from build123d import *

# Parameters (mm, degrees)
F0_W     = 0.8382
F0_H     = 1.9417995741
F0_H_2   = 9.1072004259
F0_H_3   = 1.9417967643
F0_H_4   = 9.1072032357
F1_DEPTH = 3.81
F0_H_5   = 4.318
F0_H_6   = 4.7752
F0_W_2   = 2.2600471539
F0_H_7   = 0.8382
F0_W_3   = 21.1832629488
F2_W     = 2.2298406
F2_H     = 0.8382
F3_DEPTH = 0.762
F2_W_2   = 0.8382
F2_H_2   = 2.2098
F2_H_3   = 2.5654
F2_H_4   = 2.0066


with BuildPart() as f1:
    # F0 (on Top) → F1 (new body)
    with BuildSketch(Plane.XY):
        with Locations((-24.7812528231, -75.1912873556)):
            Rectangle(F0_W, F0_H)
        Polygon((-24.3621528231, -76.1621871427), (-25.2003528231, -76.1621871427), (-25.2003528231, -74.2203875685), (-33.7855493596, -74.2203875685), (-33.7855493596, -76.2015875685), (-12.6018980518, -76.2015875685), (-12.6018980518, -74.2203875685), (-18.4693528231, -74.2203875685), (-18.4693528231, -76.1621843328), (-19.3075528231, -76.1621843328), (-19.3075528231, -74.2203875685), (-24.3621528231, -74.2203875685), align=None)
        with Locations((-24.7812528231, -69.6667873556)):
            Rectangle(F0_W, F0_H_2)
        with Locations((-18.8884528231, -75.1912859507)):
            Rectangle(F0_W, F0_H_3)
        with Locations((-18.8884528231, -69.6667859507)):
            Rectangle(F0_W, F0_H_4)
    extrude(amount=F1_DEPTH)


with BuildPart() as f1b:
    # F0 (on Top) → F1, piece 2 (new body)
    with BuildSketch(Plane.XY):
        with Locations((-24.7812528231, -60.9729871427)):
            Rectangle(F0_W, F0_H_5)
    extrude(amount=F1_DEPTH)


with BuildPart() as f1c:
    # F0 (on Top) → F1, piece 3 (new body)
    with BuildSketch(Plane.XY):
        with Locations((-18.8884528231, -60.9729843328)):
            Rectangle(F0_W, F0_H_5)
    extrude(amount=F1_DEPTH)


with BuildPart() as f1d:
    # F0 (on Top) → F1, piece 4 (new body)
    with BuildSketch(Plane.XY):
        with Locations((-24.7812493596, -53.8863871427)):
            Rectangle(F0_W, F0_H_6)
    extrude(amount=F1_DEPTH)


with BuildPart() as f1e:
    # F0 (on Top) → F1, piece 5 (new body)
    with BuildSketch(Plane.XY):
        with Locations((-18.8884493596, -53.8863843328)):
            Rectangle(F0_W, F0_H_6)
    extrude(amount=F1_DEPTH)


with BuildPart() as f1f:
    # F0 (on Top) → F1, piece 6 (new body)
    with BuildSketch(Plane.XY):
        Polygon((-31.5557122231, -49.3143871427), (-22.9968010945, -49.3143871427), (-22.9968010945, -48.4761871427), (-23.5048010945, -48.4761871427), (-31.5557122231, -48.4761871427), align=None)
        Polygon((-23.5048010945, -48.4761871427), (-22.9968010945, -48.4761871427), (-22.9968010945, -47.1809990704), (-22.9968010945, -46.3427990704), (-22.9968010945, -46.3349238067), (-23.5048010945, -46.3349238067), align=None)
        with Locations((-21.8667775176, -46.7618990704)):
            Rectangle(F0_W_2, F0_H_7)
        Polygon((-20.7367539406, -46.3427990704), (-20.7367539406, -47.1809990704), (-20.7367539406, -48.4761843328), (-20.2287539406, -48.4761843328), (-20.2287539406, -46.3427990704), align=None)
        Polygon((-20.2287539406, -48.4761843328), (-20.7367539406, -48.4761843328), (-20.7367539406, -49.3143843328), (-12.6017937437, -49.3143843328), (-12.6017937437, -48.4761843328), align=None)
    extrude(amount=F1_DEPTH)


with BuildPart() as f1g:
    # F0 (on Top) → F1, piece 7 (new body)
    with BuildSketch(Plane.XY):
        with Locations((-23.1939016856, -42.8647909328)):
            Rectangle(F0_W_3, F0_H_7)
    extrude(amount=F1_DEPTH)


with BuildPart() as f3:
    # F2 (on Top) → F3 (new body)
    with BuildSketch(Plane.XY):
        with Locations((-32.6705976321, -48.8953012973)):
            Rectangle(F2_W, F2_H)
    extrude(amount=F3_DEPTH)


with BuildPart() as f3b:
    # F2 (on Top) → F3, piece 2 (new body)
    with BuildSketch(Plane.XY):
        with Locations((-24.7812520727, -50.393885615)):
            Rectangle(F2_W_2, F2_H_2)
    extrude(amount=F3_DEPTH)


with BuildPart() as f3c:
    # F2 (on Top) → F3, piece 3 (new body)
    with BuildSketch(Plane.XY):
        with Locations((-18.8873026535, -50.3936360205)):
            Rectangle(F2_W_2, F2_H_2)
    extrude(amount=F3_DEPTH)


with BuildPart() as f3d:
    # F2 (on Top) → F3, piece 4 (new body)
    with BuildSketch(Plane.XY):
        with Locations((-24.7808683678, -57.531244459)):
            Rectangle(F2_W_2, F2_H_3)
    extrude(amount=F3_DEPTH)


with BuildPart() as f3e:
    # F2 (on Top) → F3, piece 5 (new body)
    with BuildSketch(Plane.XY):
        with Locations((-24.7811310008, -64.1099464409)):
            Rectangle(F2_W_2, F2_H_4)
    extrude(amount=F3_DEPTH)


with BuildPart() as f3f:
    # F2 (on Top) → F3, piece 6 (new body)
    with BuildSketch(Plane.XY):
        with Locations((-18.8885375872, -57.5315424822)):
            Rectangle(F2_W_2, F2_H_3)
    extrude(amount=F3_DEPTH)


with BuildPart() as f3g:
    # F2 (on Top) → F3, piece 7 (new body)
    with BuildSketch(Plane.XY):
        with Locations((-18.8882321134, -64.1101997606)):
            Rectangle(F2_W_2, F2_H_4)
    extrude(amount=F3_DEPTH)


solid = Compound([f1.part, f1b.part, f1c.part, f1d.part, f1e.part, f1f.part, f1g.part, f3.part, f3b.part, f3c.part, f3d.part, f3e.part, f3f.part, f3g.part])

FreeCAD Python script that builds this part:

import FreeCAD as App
import Part
import Sketcher

V = App.Vector
Q = App.Units.Quantity

doc = App.newDocument("Part")
params = doc.addObject("Spreadsheet::Sheet", "Params")
for row, (alias, value) in enumerate([
    ("sketch1_width", "0.3379999 in"),
    ("sketch1_width2", "0.033 in"),
    ("sketch1_width3", "0.199 in"),
    ("sketch1_height", "0.078 in"),
    ("pad1_length", "0.15 in"),
    ("sketch2_height", "0.17 in"),
    ("sketch2_width", "0.033 in"),
    ("pad2_length", "0.15 in"),
    ("sketch3_height", "0.17 in"),
    ("sketch3_width", "0.033 in"),
    ("pad3_length", "0.15 in"),
    ("sketch4_width", "0.033 in"),
    ("sketch4_height", "0.188 in"),
    ("pad4_length", "0.15 in"),
    ("sketch5_width", "0.033 in"),
    ("sketch5_height", "0.188 in"),
    ("pad5_length", "0.15 in"),
    ("sketch6_width", "0.02 in"),
    ("sketch6_height", "0.033 in"),
    ("pad6_length", "0.15 in"),
    ("sketch7_height", "0.033 in"),
    ("pad7_length", "0.15 in"),
    ("sketch8_height", "0.033 in"),
    ("pad8_length", "0.03 in"),
    ("sketch9_width", "0.033 in"),
    ("sketch9_height", "0.087 in"),
    ("pad9_length", "0.03 in"),
    ("sketch10_width", "0.033 in"),
    ("sketch10_height", "0.087 in"),
    ("pad10_length", "0.03 in"),
    ("sketch11_width", "0.033 in"),
    ("sketch11_height", "0.101 in"),
    ("pad11_length", "0.03 in"),
    ("sketch12_width", "0.033 in"),
    ("sketch12_height", "0.079 in"),
    ("pad12_length", "0.03 in"),
    ("sketch13_width", "0.033 in"),
    ("sketch13_height", "0.101 in"),
    ("pad13_length", "0.03 in"),
    ("sketch14_width", "0.033 in"),
    ("sketch14_height", "0.079 in"),
    ("pad14_length", "0.03 in"),
], start=1):
    params.set(f"A{row}", alias)
    params.set(f"B{row}", "=" + value)
    params.setAlias(f"B{row}", alias)

body = doc.addObject("PartDesign::Body", "Body")

# Sketch on XY plane
sketch1 = doc.addObject("Sketcher::SketchObject", "Sketch")
body.addObject(sketch1)
sketch1.AttachmentSupport = (doc.XY_Plane, [""])
sketch1.MapMode = "FlatFace"
sketch1.addGeometry([
    Part.LineSegment(V(-25.2, -74.2, 0), V(-33.8, -74.2, 0)),  # 0
    Part.LineSegment(V(-33.8, -74.2, 0), V(-33.8, -76.2, 0)),  # 1
    Part.LineSegment(V(-33.8, -76.2, 0), V(-12.6, -76.2, 0)),  # 2
    Part.LineSegment(V(-12.6, -76.2, 0), V(-12.6, -74.2, 0)),  # 3
    Part.LineSegment(V(-12.6, -74.2, 0), V(-18.5, -74.2, 0)),  # 4
    Part.LineSegment(V(-18.5, -74.2, 0), V(-18.5, -65.1, 0)),  # 5
    Part.LineSegment(V(-18.5, -65.1, 0), V(-19.3, -65.1, 0)),  # 6
    Part.LineSegment(V(-19.3, -65.1, 0), V(-19.3, -74.2, 0)),  # 7
    Part.LineSegment(V(-19.3, -74.2, 0), V(-24.4, -74.2, 0)),  # 8
    Part.LineSegment(V(-24.4, -74.2, 0), V(-24.4, -65.1, 0)),  # 9
    Part.LineSegment(V(-24.4, -65.1, 0), V(-25.2, -65.1, 0)),  # 10
    Part.LineSegment(V(-25.2, -65.1, 0), V(-25.2, -74.2, 0)),  # 11
], False)
sketch1.addConstraint([
    Sketcher.Constraint("Coincident", 0, 2, 1, 1),
    Sketcher.Constraint("Coincident", 1, 2, 2, 1),
    Sketcher.Constraint("Coincident", 2, 2, 3, 1),
    Sketcher.Constraint("Coincident", 3, 2, 4, 1),
    Sketcher.Constraint("Coincident", 4, 2, 5, 1),
    Sketcher.Constraint("Coincident", 5, 2, 6, 1),
    Sketcher.Constraint("Coincident", 6, 2, 7, 1),
    Sketcher.Constraint("Coincident", 7, 2, 8, 1),
    Sketcher.Constraint("Coincident", 8, 2, 9, 1),
    Sketcher.Constraint("Coincident", 9, 2, 10, 1),
    Sketcher.Constraint("Coincident", 10, 2, 11, 1),
    Sketcher.Constraint("Coincident", 11, 2, 0, 1),
    Sketcher.Constraint("Horizontal", 0),
    Sketcher.Constraint("Vertical", 1),
    Sketcher.Constraint("Horizontal", 2),
    Sketcher.Constraint("Vertical", 3),
    Sketcher.Constraint("Horizontal", 4),
    Sketcher.Constraint("Vertical", 5),
    Sketcher.Constraint("Horizontal", 6),
    Sketcher.Constraint("Vertical", 7),
    Sketcher.Constraint("Horizontal", 8),
    Sketcher.Constraint("Vertical", 9),
    Sketcher.Constraint("Horizontal", 10),
    Sketcher.Constraint("Vertical", 11),
    Sketcher.Constraint("Horizontal", 0, 2, 3, 2),
    Sketcher.Constraint("Horizontal", 4, 2, 7, 2),
    Sketcher.Constraint("Equal", 6, 10),
    Sketcher.Constraint("DistanceX", 0, 2, 0, 1, Q("0.3379999 in")),
    Sketcher.Constraint("DistanceX", 6, 2, 6, 1, Q("0.033 in")),
    Sketcher.Constraint("DistanceX", 8, 2, 8, 1, Q("0.199 in")),
    Sketcher.Constraint("DistanceY", 1, 2, 1, 1, Q("0.078 in")),
    Sketcher.Constraint("DistanceY", 9, 1, 9, 2, 9.1072),
    Sketcher.Constraint("DistanceX", 2, 1, 2, 2, 21.183651),
    Sketcher.Constraint("DistanceX", 2, 2, -1, 1, 12.601898),
    Sketcher.Constraint("DistanceY", 5, 1, 5, 2, 9.107203),
    Sketcher.Constraint("DistanceY", 0, 2, -1, 1, 74.220388),
])
sketch1.setExpression("Constraints[27]", "Params.sketch1_width")
sketch1.setExpression("Constraints[28]", "Params.sketch1_width2")
sketch1.setExpression("Constraints[29]", "Params.sketch1_width3")
sketch1.setExpression("Constraints[30]", "Params.sketch1_height")
pad1 = doc.addObject("PartDesign::Pad", "Pad")
body.addObject(pad1)
pad1.Profile = sketch1
pad1.setExpression("Length", "Params.pad1_length")
body2 = doc.addObject("PartDesign::Body", "Body001")

# Sketch on XY plane
sketch2 = doc.addObject("Sketcher::SketchObject", "Sketch001")
body2.addObject(sketch2)
sketch2.AttachmentSupport = (doc.getObject("XY_Plane001"), [""])
sketch2.MapMode = "FlatFace"
sketch2.addGeometry([
    Part.LineSegment(V(-25.2, -58.8, 0), V(-25.2, -63.1, 0)),
    Part.LineSegment(V(-25.2, -63.1, 0), V(-24.4, -63.1, 0)),
    Part.LineSegment(V(-24.4, -63.1, 0), V(-24.4, -58.8, 0)),
    Part.LineSegment(V(-24.4, -58.8, 0), V(-25.2, -58.8, 0)),
], False)
sketch2.addConstraint([
    Sketcher.Constraint("Coincident", 0, 2, 1, 1),
    Sketcher.Constraint("Coincident", 1, 2, 2, 1),
    Sketcher.Constraint("Coincident", 2, 2, 3, 1),
    Sketcher.Constraint("Coincident", 3, 2, 0, 1),
    Sketcher.Constraint("Vertical", 0),
    Sketcher.Constraint("Horizontal", 1),
    Sketcher.Constraint("Vertical", 2),
    Sketcher.Constraint("Horizontal", 3),
    Sketcher.Constraint("DistanceY", 0, 2, 0, 1, Q("0.17 in")),
    Sketcher.Constraint("DistanceX", 1, 1, 1, 2, Q("0.033 in")),
    Sketcher.Constraint("DistanceX", 0, 2, -1, 1, 25.200353),
    Sketcher.Constraint("DistanceY", 0, 2, -1, 1, 63.131987),
])
sketch2.setExpression("Constraints[8]", "Params.sketch2_height")
sketch2.setExpression("Constraints[9]", "Params.sketch2_width")
pad2 = doc.addObject("PartDesign::Pad", "Pad001")
body2.addObject(pad2)
pad2.Profile = sketch2
pad2.setExpression("Length", "Params.pad2_length")
body3 = doc.addObject("PartDesign::Body", "Body002")

# Sketch on XY plane
sketch3 = doc.addObject("Sketcher::SketchObject", "Sketch002")
body3.addObject(sketch3)
sketch3.AttachmentSupport = (doc.getObject("XY_Plane002"), [""])
sketch3.MapMode = "FlatFace"
sketch3.addGeometry([
    Part.LineSegment(V(-19.3, -58.8, 0), V(-19.3, -63.1, 0)),
    Part.LineSegment(V(-19.3, -63.1, 0), V(-18.5, -63.1, 0)),
    Part.LineSegment(V(-18.5, -63.1, 0), V(-18.5, -58.8, 0)),
    Part.LineSegment(V(-18.5, -58.8, 0), V(-19.3, -58.8, 0)),
], False)
sketch3.addConstraint([
    Sketcher.Constraint("Coincident", 0, 2, 1, 1),
    Sketcher.Constraint("Coincident", 1, 2, 2, 1),
    Sketcher.Constraint("Coincident", 2, 2, 3, 1),
    Sketcher.Constraint("Coincident", 3, 2, 0, 1),
    Sketcher.Constraint("Vertical", 0),
    Sketcher.Constraint("Horizontal", 1),
    Sketcher.Constraint("Vertical", 2),
    Sketcher.Constraint("Horizontal", 3),
    Sketcher.Constraint("DistanceY", 0, 2, 0, 1, Q("0.17 in")),
    Sketcher.Constraint("DistanceX", 1, 1, 1, 2, Q("0.033 in")),
    Sketcher.Constraint("DistanceX", 0, 2, -1, 1, 19.307553),
    Sketcher.Constraint("DistanceY", 0, 2, -1, 1, 63.131984),
])
sketch3.setExpression("Constraints[8]", "Params.sketch3_height")
sketch3.setExpression("Constraints[9]", "Params.sketch3_width")
pad3 = doc.addObject("PartDesign::Pad", "Pad002")
body3.addObject(pad3)
pad3.Profile = sketch3
pad3.setExpression("Length", "Params.pad3_length")
body4 = doc.addObject("PartDesign::Body", "Body003")

# Sketch on XY plane
sketch4 = doc.addObject("Sketcher::SketchObject", "Sketch003")
body4.addObject(sketch4)
sketch4.AttachmentSupport = (doc.getObject("XY_Plane003"), [""])
sketch4.MapMode = "FlatFace"
sketch4.addGeometry([
    Part.LineSegment(V(-25.2, -51.5, 0), V(-25.2, -56.3, 0)),
    Part.LineSegment(V(-25.2, -56.3, 0), V(-24.4, -56.3, 0)),
    Part.LineSegment(V(-24.4, -56.3, 0), V(-24.4, -51.5, 0)),
    Part.LineSegment(V(-24.4, -51.5, 0), V(-25.2, -51.5, 0)),
], False)
sketch4.addConstraint([
    Sketcher.Constraint("Coincident", 0, 2, 1, 1),
    Sketcher.Constraint("Coincident", 1, 2, 2, 1),
    Sketcher.Constraint("Coincident", 2, 2, 3, 1),
    Sketcher.Constraint("Coincident", 3, 2, 0, 1),
    Sketcher.Constraint("Vertical", 0),
    Sketcher.Constraint("Horizontal", 1),
    Sketcher.Constraint("Vertical", 2),
    Sketcher.Constraint("Horizontal", 3),
    Sketcher.Constraint("DistanceX", 1, 1, 1, 2, Q("0.033 in")),
    Sketcher.Constraint("DistanceY", 0, 2, 0, 1, Q("0.188 in")),
    Sketcher.Constraint("DistanceX", 0, 2, -1, 1, 25.200349),
    Sketcher.Constraint("DistanceY", 0, 2, -1, 1, 56.273987),
])
sketch4.setExpression("Constraints[8]", "Params.sketch4_width")
sketch4.setExpression("Constraints[9]", "Params.sketch4_height")
pad4 = doc.addObject("PartDesign::Pad", "Pad003")
body4.addObject(pad4)
pad4.Profile = sketch4
pad4.setExpression("Length", "Params.pad4_length")
body5 = doc.addObject("PartDesign::Body", "Body004")

# Sketch on XY plane
sketch5 = doc.addObject("Sketcher::SketchObject", "Sketch004")
body5.addObject(sketch5)
sketch5.AttachmentSupport = (doc.getObject("XY_Plane004"), [""])
sketch5.MapMode = "FlatFace"
sketch5.addGeometry([
    Part.LineSegment(V(-19.3, -51.5, 0), V(-19.3, -56.3, 0)),
    Part.LineSegment(V(-19.3, -56.3, 0), V(-18.5, -56.3, 0)),
    Part.LineSegment(V(-18.5, -56.3, 0), V(-18.5, -51.5, 0)),
    Part.LineSegment(V(-18.5, -51.5, 0), V(-19.3, -51.5, 0)),
], False)
sketch5.addConstraint([
    Sketcher.Constraint("Coincident", 0, 2, 1, 1),
    Sketcher.Constraint("Coincident", 1, 2, 2, 1),
    Sketcher.Constraint("Coincident", 2, 2, 3, 1),
    Sketcher.Constraint("Coincident", 3, 2, 0, 1),
    Sketcher.Constraint("Vertical", 0),
    Sketcher.Constraint("Horizontal", 1),
    Sketcher.Constraint("Vertical", 2),
    Sketcher.Constraint("Horizontal", 3),
    Sketcher.Constraint("DistanceX", 1, 1, 1, 2, Q("0.033 in")),
    Sketcher.Constraint("DistanceY", 0, 2, 0, 1, Q("0.188 in")),
    Sketcher.Constraint("DistanceX", 0, 2, -1, 1, 19.307549),
    Sketcher.Constraint("DistanceY", 0, 2, -1, 1, 56.273984),
])
sketch5.setExpression("Constraints[8]", "Params.sketch5_width")
sketch5.setExpression("Constraints[9]", "Params.sketch5_height")
pad5 = doc.addObject("PartDesign::Pad", "Pad004")
body5.addObject(pad5)
pad5.Profile = sketch5
pad5.setExpression("Length", "Params.pad5_length")
body6 = doc.addObject("PartDesign::Body", "Body005")

# Sketch on XY plane
sketch6 = doc.addObject("Sketcher::SketchObject", "Sketch005")
body6.addObject(sketch6)
sketch6.AttachmentSupport = (doc.getObject("XY_Plane005"), [""])
sketch6.MapMode = "FlatFace"
sketch6.addGeometry([
    Part.LineSegment(V(-31.556, -49.314, 0), V(-22.997, -49.314, 0)),  # 0
    Part.LineSegment(V(-22.997, -49.314, 0), V(-22.997, -47.181, 0)),  # 1
    Part.LineSegment(V(-22.997, -47.181, 0), V(-20.737, -47.181, 0)),  # 2
    Part.LineSegment(V(-20.737, -47.181, 0), V(-20.737, -49.314, 0)),  # 3
    Part.LineSegment(V(-20.737, -49.314, 0), V(-12.602, -49.314, 0)),  # 4
    Part.LineSegment(V(-12.602, -49.314, 0), V(-12.602, -48.476, 0)),  # 5
    Part.LineSegment(V(-12.602, -48.476, 0), V(-20.229, -48.476, 0)),  # 6
    Part.LineSegment(V(-20.229, -48.476, 0), V(-20.229, -46.343, 0)),  # 7
    Part.LineSegment(V(-20.229, -46.343, 0), V(-22.997, -46.343, 0)),  # 8
    Part.LineSegment(V(-22.997, -46.343, 0), V(-22.997, -46.335, 0)),  # 9
    Part.LineSegment(V(-22.997, -46.335, 0), V(-23.505, -46.335, 0)),  # 10
    Part.LineSegment(V(-23.505, -46.335, 0), V(-23.505, -48.476, 0)),  # 11
    Part.LineSegment(V(-23.505, -48.476, 0), V(-31.556, -48.476, 0)),  # 12
    Part.LineSegment(V(-31.556, -48.476, 0), V(-31.556, -49.314, 0)),  # 13
], False)
sketch6.addConstraint([
    Sketcher.Constraint("Coincident", 0, 2, 1, 1),
    Sketcher.Constraint("Coincident", 1, 2, 2, 1),
    Sketcher.Constraint("Coincident", 2, 2, 3, 1),
    Sketcher.Constraint("Coincident", 3, 2, 4, 1),
    Sketcher.Constraint("Coincident", 4, 2, 5, 1),
    Sketcher.Constraint("Coincident", 5, 2, 6, 1),
    Sketcher.Constraint("Coincident", 6, 2, 7, 1),
    Sketcher.Constraint("Coincident", 7, 2, 8, 1),
    Sketcher.Constraint("Coincident", 8, 2, 9, 1),
    Sketcher.Constraint("Coincident", 9, 2, 10, 1),
    Sketcher.Constraint("Coincident", 10, 2, 11, 1),
    Sketcher.Constraint("Coincident", 11, 2, 12, 1),
    Sketcher.Constraint("Coincident", 12, 2, 13, 1),
    Sketcher.Constraint("Coincident", 13, 2, 0, 1),
    Sketcher.Constraint("Horizontal", 0),
    Sketcher.Constraint("Vertical", 1),
    Sketcher.Constraint("Horizontal", 2),
    Sketcher.Constraint("Vertical", 3),
    Sketcher.Constraint("Horizontal", 4),
    Sketcher.Constraint("Vertical", 5),
    Sketcher.Constraint("Horizontal", 6),
    Sketcher.Constraint("Vertical", 7),
    Sketcher.Constraint("Horizontal", 8),
    Sketcher.Constraint("Vertical", 9),
    Sketcher.Constraint("Horizontal", 10),
    Sketcher.Constraint("Vertical", 11),
    Sketcher.Constraint("Horizontal", 12),
    Sketcher.Constraint("Vertical", 13),
    Sketcher.Constraint("Vertical", 1, 2, 8, 2),
    Sketcher.Constraint("Equal", 3, 7),
    Sketcher.Constraint("Equal", 5, 13),
    Sketcher.Constraint("DistanceX", 10, 2, 10, 1, Q("0.02 in")),
    Sketcher.Constraint("DistanceY", 5, 1, 5, 2, Q("0.033 in")),
    Sketcher.Constraint("DistanceX", 3, 2, 6, 2, Q("0.02 in")),
    Sketcher.Constraint("DistanceY", 0, 2, 5, 2, Q("0.0330001 in")),
    Sketcher.Constraint("DistanceX", 0, 1, 0, 2, 8.558911),
    Sketcher.Constraint("DistanceX", 4, 1, 4, 2, 8.13496),
    Sketcher.Constraint("DistanceY", 1, 1, 1, 2, 2.133388),
    Sketcher.Constraint("DistanceX", 0, 2, -1, 1, 22.996801),
    Sketcher.Constraint("DistanceY", 1, 2, -1, 1, 47.180999),
    Sketcher.Constraint("DistanceX", 2, 1, 2, 2, 2.260047),
    Sketcher.Constraint("DistanceY", 9, 1, 9, 2, 0.007875),
])
sketch6.setExpression("Constraints[31]", "Params.sketch6_width")
sketch6.setExpression("Constraints[32]", "Params.sketch6_height")
pad6 = doc.addObject("PartDesign::Pad", "Pad005")
body6.addObject(pad6)
pad6.Profile = sketch6
pad6.setExpression("Length", "Params.pad6_length")
body7 = doc.addObject("PartDesign::Body", "Body006")

# Sketch on XY plane
sketch7 = doc.addObject("Sketcher::SketchObject", "Sketch006")
body7.addObject(sketch7)
sketch7.AttachmentSupport = (doc.getObject("XY_Plane006"), [""])
sketch7.MapMode = "FlatFace"
sketch7.addGeometry([
    Part.LineSegment(V(-33.8, -42.4, 0), V(-33.8, -43.3, 0)),
    Part.LineSegment(V(-33.8, -43.3, 0), V(-12.6, -43.3, 0)),
    Part.LineSegment(V(-12.6, -43.3, 0), V(-12.6, -42.4, 0)),
    Part.LineSegment(V(-12.6, -42.4, 0), V(-33.8, -42.4, 0)),
], False)
sketch7.addConstraint([
    Sketcher.Constraint("Coincident", 0, 2, 1, 1),
    Sketcher.Constraint("Coincident", 1, 2, 2, 1),
    Sketcher.Constraint("Coincident", 2, 2, 3, 1),
    Sketcher.Constraint("Coincident", 3, 2, 0, 1),
    Sketcher.Constraint("Vertical", 0),
    Sketcher.Constraint("Horizontal", 1),
    Sketcher.Constraint("Vertical", 2),
    Sketcher.Constraint("Horizontal", 3),
    Sketcher.Constraint("DistanceY", 0, 2, 0, 1, Q("0.033 in")),
    Sketcher.Constraint("DistanceX", 1, 1, 1, 2, 21.183263),
    Sketcher.Constraint("DistanceY", 0, 2, -1, 1, 43.283891),
    Sketcher.Constraint("DistanceX", 1, 2, -1, 1, 12.60227),
])
sketch7.setExpression("Constraints[8]", "Params.sketch7_height")
pad7 = doc.addObject("PartDesign::Pad", "Pad006")
body7.addObject(pad7)
pad7.Profile = sketch7
pad7.setExpression("Length", "Params.pad7_length")
body8 = doc.addObject("PartDesign::Body", "Body007")

# Sketch on XY plane
sketch8 = doc.addObject("Sketcher::SketchObject", "Sketch007")
body8.addObject(sketch8)
sketch8.AttachmentSupport = (doc.getObject("XY_Plane007"), [""])
sketch8.MapMode = "FlatFace"
sketch8.addGeometry([
    Part.LineSegment(V(-33.8, -48.5, 0), V(-33.8, -49.3, 0)),
    Part.LineSegment(V(-33.8, -49.3, 0), V(-31.6, -49.3, 0)),
    Part.LineSegment(V(-31.6, -49.3, 0), V(-31.6, -48.5, 0)),
    Part.LineSegment(V(-31.6, -48.5, 0), V(-33.8, -48.5, 0)),
], False)
sketch8.addConstraint([
    Sketcher.Constraint("Coincident", 0, 2, 1, 1),
    Sketcher.Constraint("Coincident", 1, 2, 2, 1),
    Sketcher.Constraint("Coincident", 2, 2, 3, 1),
    Sketcher.Constraint("Coincident", 3, 2, 0, 1),
    Sketcher.Constraint("Vertical", 0),
    Sketcher.Constraint("Horizontal", 1),
    Sketcher.Constraint("Vertical", 2),
    Sketcher.Constraint("Horizontal", 3),
    Sketcher.Constraint("DistanceY", 0, 2, 0, 1, Q("0.033 in")),
    Sketcher.Constraint("DistanceX", 1, 1, 1, 2, 2.229841),
    Sketcher.Constraint("DistanceY", 0, 2, -1, 1, 49.314401),
    Sketcher.Constraint("DistanceX", 0, 2, -1, 1, 33.785518),
])
sketch8.setExpression("Constraints[8]", "Params.sketch8_height")
pad8 = doc.addObject("PartDesign::Pad", "Pad007")
body8.addObject(pad8)
pad8.Profile = sketch8
pad8.setExpression("Length", "Params.pad8_length")
body9 = doc.addObject("PartDesign::Body", "Body008")

# Sketch on XY plane
sketch9 = doc.addObject("Sketcher::SketchObject", "Sketch008")
body9.addObject(sketch9)
sketch9.AttachmentSupport = (doc.getObject("XY_Plane008"), [""])
sketch9.MapMode = "FlatFace"
sketch9.addGeometry([
    Part.LineSegment(V(-25.2, -49.3, 0), V(-25.2, -51.5, 0)),
    Part.LineSegment(V(-25.2, -51.5, 0), V(-24.4, -51.5, 0)),
    Part.LineSegment(V(-24.4, -51.5, 0), V(-24.4, -49.3, 0)),
    Part.LineSegment(V(-24.4, -49.3, 0), V(-25.2, -49.3, 0)),
], False)
sketch9.addConstraint([
    Sketcher.Constraint("Coincident", 0, 2, 1, 1),
    Sketcher.Constraint("Coincident", 1, 2, 2, 1),
    Sketcher.Constraint("Coincident", 2, 2, 3, 1),
    Sketcher.Constraint("Coincident", 3, 2, 0, 1),
    Sketcher.Constraint("Vertical", 0),
    Sketcher.Constraint("Horizontal", 1),
    Sketcher.Constraint("Vertical", 2),
    Sketcher.Constraint("Horizontal", 3),
    Sketcher.Constraint("DistanceX", 1, 1, 1, 2, Q("0.033 in")),
    Sketcher.Constraint("DistanceY", 0, 2, 0, 1, Q("0.087 in")),
    Sketcher.Constraint("DistanceX", 0, 2, -1, 1, 25.200352),
    Sketcher.Constraint("DistanceY", 0, 2, -1, 1, 51.498786),
])
sketch9.setExpression("Constraints[8]", "Params.sketch9_width")
sketch9.setExpression("Constraints[9]", "Params.sketch9_height")
pad9 = doc.addObject("PartDesign::Pad", "Pad008")
body9.addObject(pad9)
pad9.Profile = sketch9
pad9.setExpression("Length", "Params.pad9_length")
body10 = doc.addObject("PartDesign::Body", "Body009")

# Sketch on XY plane
sketch10 = doc.addObject("Sketcher::SketchObject", "Sketch009")
body10.addObject(sketch10)
sketch10.AttachmentSupport = (doc.getObject("XY_Plane009"), [""])
sketch10.MapMode = "FlatFace"
sketch10.addGeometry([
    Part.LineSegment(V(-19.3, -49.3, 0), V(-19.3, -51.5, 0)),
    Part.LineSegment(V(-19.3, -51.5, 0), V(-18.5, -51.5, 0)),
    Part.LineSegment(V(-18.5, -51.5, 0), V(-18.5, -49.3, 0)),
    Part.LineSegment(V(-18.5, -49.3, 0), V(-19.3, -49.3, 0)),
], False)
sketch10.addConstraint([
    Sketcher.Constraint("Coincident", 0, 2, 1, 1),
    Sketcher.Constraint("Coincident", 1, 2, 2, 1),
    Sketcher.Constraint("Coincident", 2, 2, 3, 1),
    Sketcher.Constraint("Coincident", 3, 2, 0, 1),
    Sketcher.Constraint("Vertical", 0),
    Sketcher.Constraint("Horizontal", 1),
    Sketcher.Constraint("Vertical", 2),
    Sketcher.Constraint("Horizontal", 3),
    Sketcher.Constraint("DistanceX", 1, 1, 1, 2, Q("0.033 in")),
    Sketcher.Constraint("DistanceY", 0, 2, 0, 1, Q("0.087 in")),
    Sketcher.Constraint("DistanceX", 0, 2, -1, 1, 19.306403),
    Sketcher.Constraint("DistanceY", 0, 2, -1, 1, 51.498536),
])
sketch10.setExpression("Constraints[8]", "Params.sketch10_width")
sketch10.setExpression("Constraints[9]", "Params.sketch10_height")
pad10 = doc.addObject("PartDesign::Pad", "Pad009")
body10.addObject(pad10)
pad10.Profile = sketch10
pad10.setExpression("Length", "Params.pad10_length")
body11 = doc.addObject("PartDesign::Body", "Body010")

# Sketch on XY plane
sketch11 = doc.addObject("Sketcher::SketchObject", "Sketch010")
body11.addObject(sketch11)
sketch11.AttachmentSupport = (doc.getObject("XY_Plane010"), [""])
sketch11.MapMode = "FlatFace"
sketch11.addGeometry([
    Part.LineSegment(V(-25.2, -56.2, 0), V(-25.2, -58.8, 0)),
    Part.LineSegment(V(-25.2, -58.8, 0), V(-24.4, -58.8, 0)),
    Part.LineSegment(V(-24.4, -58.8, 0), V(-24.4, -56.2, 0)),
    Part.LineSegment(V(-24.4, -56.2, 0), V(-25.2, -56.2, 0)),
], False)
sketch11.addConstraint([
    Sketcher.Constraint("Coincident", 0, 2, 1, 1),
    Sketcher.Constraint("Coincident", 1, 2, 2, 1),
    Sketcher.Constraint("Coincident", 2, 2, 3, 1),
    Sketcher.Constraint("Coincident", 3, 2, 0, 1),
    Sketcher.Constraint("Vertical", 0),
    Sketcher.Constraint("Horizontal", 1),
    Sketcher.Constraint("Vertical", 2),
    Sketcher.Constraint("Horizontal", 3),
    Sketcher.Constraint("DistanceX", 1, 1, 1, 2, Q("0.033 in")),
    Sketcher.Constraint("DistanceY", 0, 2, 0, 1, Q("0.101 in")),
    Sketcher.Constraint("DistanceX", 0, 2, -1, 1, 25.199968),
    Sketcher.Constraint("DistanceY", 0, 2, -1, 1, 58.813944),
])
sketch11.setExpression("Constraints[8]", "Params.sketch11_width")
sketch11.setExpression("Constraints[9]", "Params.sketch11_height")
pad11 = doc.addObject("PartDesign::Pad", "Pad010")
body11.addObject(pad11)
pad11.Profile = sketch11
pad11.setExpression("Length", "Params.pad11_length")
body12 = doc.addObject("PartDesign::Body", "Body011")

# Sketch on XY plane
sketch12 = doc.addObject("Sketcher::SketchObject", "Sketch011")
body12.addObject(sketch12)
sketch12.AttachmentSupport = (doc.getObject("XY_Plane011"), [""])
sketch12.MapMode = "FlatFace"
sketch12.addGeometry([
    Part.LineSegment(V(-25.2, -63.1, 0), V(-25.2, -65.1, 0)),
    Part.LineSegment(V(-25.2, -65.1, 0), V(-24.4, -65.1, 0)),
    Part.LineSegment(V(-24.4, -65.1, 0), V(-24.4, -63.1, 0)),
    Part.LineSegment(V(-24.4, -63.1, 0), V(-25.2, -63.1, 0)),
], False)
sketch12.addConstraint([
    Sketcher.Constraint("Coincident", 0, 2, 1, 1),
    Sketcher.Constraint("Coincident", 1, 2, 2, 1),
    Sketcher.Constraint("Coincident", 2, 2, 3, 1),
    Sketcher.Constraint("Coincident", 3, 2, 0, 1),
    Sketcher.Constraint("Vertical", 0),
    Sketcher.Constraint("Horizontal", 1),
    Sketcher.Constraint("Vertical", 2),
    Sketcher.Constraint("Horizontal", 3),
    Sketcher.Constraint("DistanceX", 1, 1, 1, 2, Q("0.033 in")),
    Sketcher.Constraint("DistanceY", 0, 2, 0, 1, Q("0.079 in")),
    Sketcher.Constraint("DistanceX", 0, 2, -1, 1, 25.200231),
    Sketcher.Constraint("DistanceY", 0, 2, -1, 1, 65.113246),
])
sketch12.setExpression("Constraints[8]", "Params.sketch12_width")
sketch12.setExpression("Constraints[9]", "Params.sketch12_height")
pad12 = doc.addObject("PartDesign::Pad", "Pad011")
body12.addObject(pad12)
pad12.Profile = sketch12
pad12.setExpression("Length", "Params.pad12_length")
body13 = doc.addObject("PartDesign::Body", "Body012")

# Sketch on XY plane
sketch13 = doc.addObject("Sketcher::SketchObject", "Sketch012")
body13.addObject(sketch13)
sketch13.AttachmentSupport = (doc.getObject("XY_Plane012"), [""])
sketch13.MapMode = "FlatFace"
sketch13.addGeometry([
    Part.LineSegment(V(-19.3, -56.2, 0), V(-19.3, -58.8, 0)),
    Part.LineSegment(V(-19.3, -58.8, 0), V(-18.5, -58.8, 0)),
    Part.LineSegment(V(-18.5, -58.8, 0), V(-18.5, -56.2, 0)),
    Part.LineSegment(V(-18.5, -56.2, 0), V(-19.3, -56.2, 0)),
], False)
sketch13.addConstraint([
    Sketcher.Constraint("Coincident", 0, 2, 1, 1),
    Sketcher.Constraint("Coincident", 1, 2, 2, 1),
    Sketcher.Constraint("Coincident", 2, 2, 3, 1),
    Sketcher.Constraint("Coincident", 3, 2, 0, 1),
    Sketcher.Constraint("Vertical", 0),
    Sketcher.Constraint("Horizontal", 1),
    Sketcher.Constraint("Vertical", 2),
    Sketcher.Constraint("Horizontal", 3),
    Sketcher.Constraint("DistanceX", 1, 1, 1, 2, Q("0.033 in")),
    Sketcher.Constraint("DistanceY", 0, 2, 0, 1, Q("0.101 in")),
    Sketcher.Constraint("DistanceX", 0, 2, -1, 1, 19.307638),
    Sketcher.Constraint("DistanceY", 0, 2, -1, 1, 58.814242),
])
sketch13.setExpression("Constraints[8]", "Params.sketch13_width")
sketch13.setExpression("Constraints[9]", "Params.sketch13_height")
pad13 = doc.addObject("PartDesign::Pad", "Pad012")
body13.addObject(pad13)
pad13.Profile = sketch13
pad13.setExpression("Length", "Params.pad13_length")
body14 = doc.addObject("PartDesign::Body", "Body013")

# Sketch on XY plane
sketch14 = doc.addObject("Sketcher::SketchObject", "Sketch013")
body14.addObject(sketch14)
sketch14.AttachmentSupport = (doc.getObject("XY_Plane013"), [""])
sketch14.MapMode = "FlatFace"
sketch14.addGeometry([
    Part.LineSegment(V(-19.3, -63.1, 0), V(-19.3, -65.1, 0)),
    Part.LineSegment(V(-19.3, -65.1, 0), V(-18.5, -65.1, 0)),
    Part.LineSegment(V(-18.5, -65.1, 0), V(-18.5, -63.1, 0)),
    Part.LineSegment(V(-18.5, -63.1, 0), V(-19.3, -63.1, 0)),
], False)
sketch14.addConstraint([
    Sketcher.Constraint("Coincident", 0, 2, 1, 1),
    Sketcher.Constraint("Coincident", 1, 2, 2, 1),
    Sketcher.Constraint("Coincident", 2, 2, 3, 1),
    Sketcher.Constraint("Coincident", 3, 2, 0, 1),
    Sketcher.Constraint("Vertical", 0),
    Sketcher.Constraint("Horizontal", 1),
    Sketcher.Constraint("Vertical", 2),
    Sketcher.Constraint("Horizontal", 3),
    Sketcher.Constraint("DistanceX", 1, 1, 1, 2, Q("0.033 in")),
    Sketcher.Constraint("DistanceY", 0, 2, 0, 1, Q("0.079 in")),
    Sketcher.Constraint("DistanceY", 0, 2, -1, 1, 65.1135),
    Sketcher.Constraint("DistanceX", 0, 2, -1, 1, 19.307332),
])
sketch14.setExpression("Constraints[8]", "Params.sketch14_width")
sketch14.setExpression("Constraints[9]", "Params.sketch14_height")
pad14 = doc.addObject("PartDesign::Pad", "Pad013")
body14.addObject(pad14)
pad14.Profile = sketch14
pad14.setExpression("Length", "Params.pad14_length")

doc.recompute()
